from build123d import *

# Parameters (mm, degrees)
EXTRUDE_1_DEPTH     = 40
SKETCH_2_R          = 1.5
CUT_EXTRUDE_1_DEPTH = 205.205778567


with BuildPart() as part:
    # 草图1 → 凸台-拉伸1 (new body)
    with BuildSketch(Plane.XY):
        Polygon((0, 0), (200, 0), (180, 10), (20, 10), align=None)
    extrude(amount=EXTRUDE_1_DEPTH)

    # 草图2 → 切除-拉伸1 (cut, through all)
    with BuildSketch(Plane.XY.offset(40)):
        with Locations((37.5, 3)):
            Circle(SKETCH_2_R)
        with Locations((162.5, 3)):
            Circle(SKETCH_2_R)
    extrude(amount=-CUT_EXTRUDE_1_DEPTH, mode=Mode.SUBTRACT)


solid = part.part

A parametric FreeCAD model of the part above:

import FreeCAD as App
import Part
import Sketcher

doc = App.newDocument("Part")
params = doc.addObject("Spreadsheet::Sheet", "Params")
for row, (alias, value) in enumerate([
    ("sketch1_width", "200 mm"),
    ("sketch1_width2", "160 mm"),
    ("pad1_length", "40 mm"),
    ("sketch2_diameter", "3 mm"),
], start=1):
    params.set(f"A{row}", alias)
    params.set(f"B{row}", "=" + value)
    params.setAlias(f"B{row}", alias)

body = doc.addObject("PartDesign::Body", "Body")

# Sketch on XY plane
sketch1 = body.newObject("Sketcher::SketchObject", "Sketch")
sketch1.AttachmentSupport = (doc.getObject("XY_Plane"), [""])
sketch1.MapMode = "FlatFace"
sketch1.addGeometry(Part.LineSegment(App.Vector(0, 0, 0), App.Vector(200, 0, 0)), False)
sketch1.addGeometry(Part.LineSegment(App.Vector(200, 0, 0), App.Vector(180, 10, 0)), False)
sketch1.addGeometry(Part.LineSegment(App.Vector(180, 10, 0), App.Vector(20, 10, 0)), False)
sketch1.addGeometry(Part.LineSegment(App.Vector(20, 10, 0), App.Vector(0, 0, 0)), False)
sketch1.addConstraint(Sketcher.Constraint("Coincident", 0, 2, 1, 1))
sketch1.addConstraint(Sketcher.Constraint("Coincident", 1, 2, 2, 1))
sketch1.addConstraint(Sketcher.Constraint("Coincident", 2, 2, 3, 1))
sketch1.addConstraint(Sketcher.Constraint("Coincident", 3, 2, 0, 1))
sketch1.addConstraint(Sketcher.Constraint("Horizontal", 0))
sketch1.addConstraint(Sketcher.Constraint("Horizontal", 2))
sketch1.addConstraint(Sketcher.Constraint("Coincident", 3, 2, -1, 1))
sketch1.addConstraint(Sketcher.Constraint("Equal", 1, 3))
sketch1.addConstraint(Sketcher.Constraint("DistanceX", 0, 1, 0, 2, 200.0))
sketch1.addConstraint(Sketcher.Constraint("DistanceX", 2, 2, 2, 1, 160.0))
sketch1.addConstraint(Sketcher.Constraint("DistanceY", -1, 1, 1, 2, 10.0))
sketch1.setExpression("Constraints[8]", "Params.sketch1_width")
sketch1.setExpression("Constraints[9]", "Params.sketch1_width2")
pad1 = body.newObject("PartDesign::Pad", "Pad")
pad1.Profile = sketch1
pad1.setExpression("Length", "Params.pad1_length")

# Sketch on XY plane
sketch2 = body.newObject("Sketcher::SketchObject", "Sketch001")
sketch2.AttachmentSupport = (doc.getObject("XY_Plane"), [""])
sketch2.MapMode = "FlatFace"
sketch2.AttachmentOffset = App.Placement(App.Vector(0, 0, 40), App.Rotation())
sketch2.addGeometry(Part.Circle(App.Vector(37.5, 3, 0), App.Vector(0, 0, 1), 1.5), False)
sketch2.addGeometry(Part.Circle(App.Vector(162.5, 3, 0), App.Vector(0, 0, 1), 1.5), False)
sketch2.addConstraint(Sketcher.Constraint("Equal", 0, 1))
sketch2.addConstraint(Sketcher.Constraint("Horizontal", 0, 3, 1, 3))
sketch2.addConstraint(Sketcher.Constraint("Diameter", 0, 3.0))
sketch2.addConstraint(Sketcher.Constraint("DistanceY", -1, 1, 0, 3, 3.0))
sketch2.addConstraint(Sketcher.Constraint("DistanceX", 0, 3, 1, 3, 125.0))
sketch2.addConstraint(Sketcher.Constraint("DistanceX", -1, 1, 0, 3, 37.5))
sketch2.setExpression("Constraints[2]", "Params.sketch2_diameter")
pocket1 = body.newObject("PartDesign::Pocket", "Pocket")
pocket1.Profile = sketch2
pocket1.Type = "ThroughAll"

doc.recompute()
